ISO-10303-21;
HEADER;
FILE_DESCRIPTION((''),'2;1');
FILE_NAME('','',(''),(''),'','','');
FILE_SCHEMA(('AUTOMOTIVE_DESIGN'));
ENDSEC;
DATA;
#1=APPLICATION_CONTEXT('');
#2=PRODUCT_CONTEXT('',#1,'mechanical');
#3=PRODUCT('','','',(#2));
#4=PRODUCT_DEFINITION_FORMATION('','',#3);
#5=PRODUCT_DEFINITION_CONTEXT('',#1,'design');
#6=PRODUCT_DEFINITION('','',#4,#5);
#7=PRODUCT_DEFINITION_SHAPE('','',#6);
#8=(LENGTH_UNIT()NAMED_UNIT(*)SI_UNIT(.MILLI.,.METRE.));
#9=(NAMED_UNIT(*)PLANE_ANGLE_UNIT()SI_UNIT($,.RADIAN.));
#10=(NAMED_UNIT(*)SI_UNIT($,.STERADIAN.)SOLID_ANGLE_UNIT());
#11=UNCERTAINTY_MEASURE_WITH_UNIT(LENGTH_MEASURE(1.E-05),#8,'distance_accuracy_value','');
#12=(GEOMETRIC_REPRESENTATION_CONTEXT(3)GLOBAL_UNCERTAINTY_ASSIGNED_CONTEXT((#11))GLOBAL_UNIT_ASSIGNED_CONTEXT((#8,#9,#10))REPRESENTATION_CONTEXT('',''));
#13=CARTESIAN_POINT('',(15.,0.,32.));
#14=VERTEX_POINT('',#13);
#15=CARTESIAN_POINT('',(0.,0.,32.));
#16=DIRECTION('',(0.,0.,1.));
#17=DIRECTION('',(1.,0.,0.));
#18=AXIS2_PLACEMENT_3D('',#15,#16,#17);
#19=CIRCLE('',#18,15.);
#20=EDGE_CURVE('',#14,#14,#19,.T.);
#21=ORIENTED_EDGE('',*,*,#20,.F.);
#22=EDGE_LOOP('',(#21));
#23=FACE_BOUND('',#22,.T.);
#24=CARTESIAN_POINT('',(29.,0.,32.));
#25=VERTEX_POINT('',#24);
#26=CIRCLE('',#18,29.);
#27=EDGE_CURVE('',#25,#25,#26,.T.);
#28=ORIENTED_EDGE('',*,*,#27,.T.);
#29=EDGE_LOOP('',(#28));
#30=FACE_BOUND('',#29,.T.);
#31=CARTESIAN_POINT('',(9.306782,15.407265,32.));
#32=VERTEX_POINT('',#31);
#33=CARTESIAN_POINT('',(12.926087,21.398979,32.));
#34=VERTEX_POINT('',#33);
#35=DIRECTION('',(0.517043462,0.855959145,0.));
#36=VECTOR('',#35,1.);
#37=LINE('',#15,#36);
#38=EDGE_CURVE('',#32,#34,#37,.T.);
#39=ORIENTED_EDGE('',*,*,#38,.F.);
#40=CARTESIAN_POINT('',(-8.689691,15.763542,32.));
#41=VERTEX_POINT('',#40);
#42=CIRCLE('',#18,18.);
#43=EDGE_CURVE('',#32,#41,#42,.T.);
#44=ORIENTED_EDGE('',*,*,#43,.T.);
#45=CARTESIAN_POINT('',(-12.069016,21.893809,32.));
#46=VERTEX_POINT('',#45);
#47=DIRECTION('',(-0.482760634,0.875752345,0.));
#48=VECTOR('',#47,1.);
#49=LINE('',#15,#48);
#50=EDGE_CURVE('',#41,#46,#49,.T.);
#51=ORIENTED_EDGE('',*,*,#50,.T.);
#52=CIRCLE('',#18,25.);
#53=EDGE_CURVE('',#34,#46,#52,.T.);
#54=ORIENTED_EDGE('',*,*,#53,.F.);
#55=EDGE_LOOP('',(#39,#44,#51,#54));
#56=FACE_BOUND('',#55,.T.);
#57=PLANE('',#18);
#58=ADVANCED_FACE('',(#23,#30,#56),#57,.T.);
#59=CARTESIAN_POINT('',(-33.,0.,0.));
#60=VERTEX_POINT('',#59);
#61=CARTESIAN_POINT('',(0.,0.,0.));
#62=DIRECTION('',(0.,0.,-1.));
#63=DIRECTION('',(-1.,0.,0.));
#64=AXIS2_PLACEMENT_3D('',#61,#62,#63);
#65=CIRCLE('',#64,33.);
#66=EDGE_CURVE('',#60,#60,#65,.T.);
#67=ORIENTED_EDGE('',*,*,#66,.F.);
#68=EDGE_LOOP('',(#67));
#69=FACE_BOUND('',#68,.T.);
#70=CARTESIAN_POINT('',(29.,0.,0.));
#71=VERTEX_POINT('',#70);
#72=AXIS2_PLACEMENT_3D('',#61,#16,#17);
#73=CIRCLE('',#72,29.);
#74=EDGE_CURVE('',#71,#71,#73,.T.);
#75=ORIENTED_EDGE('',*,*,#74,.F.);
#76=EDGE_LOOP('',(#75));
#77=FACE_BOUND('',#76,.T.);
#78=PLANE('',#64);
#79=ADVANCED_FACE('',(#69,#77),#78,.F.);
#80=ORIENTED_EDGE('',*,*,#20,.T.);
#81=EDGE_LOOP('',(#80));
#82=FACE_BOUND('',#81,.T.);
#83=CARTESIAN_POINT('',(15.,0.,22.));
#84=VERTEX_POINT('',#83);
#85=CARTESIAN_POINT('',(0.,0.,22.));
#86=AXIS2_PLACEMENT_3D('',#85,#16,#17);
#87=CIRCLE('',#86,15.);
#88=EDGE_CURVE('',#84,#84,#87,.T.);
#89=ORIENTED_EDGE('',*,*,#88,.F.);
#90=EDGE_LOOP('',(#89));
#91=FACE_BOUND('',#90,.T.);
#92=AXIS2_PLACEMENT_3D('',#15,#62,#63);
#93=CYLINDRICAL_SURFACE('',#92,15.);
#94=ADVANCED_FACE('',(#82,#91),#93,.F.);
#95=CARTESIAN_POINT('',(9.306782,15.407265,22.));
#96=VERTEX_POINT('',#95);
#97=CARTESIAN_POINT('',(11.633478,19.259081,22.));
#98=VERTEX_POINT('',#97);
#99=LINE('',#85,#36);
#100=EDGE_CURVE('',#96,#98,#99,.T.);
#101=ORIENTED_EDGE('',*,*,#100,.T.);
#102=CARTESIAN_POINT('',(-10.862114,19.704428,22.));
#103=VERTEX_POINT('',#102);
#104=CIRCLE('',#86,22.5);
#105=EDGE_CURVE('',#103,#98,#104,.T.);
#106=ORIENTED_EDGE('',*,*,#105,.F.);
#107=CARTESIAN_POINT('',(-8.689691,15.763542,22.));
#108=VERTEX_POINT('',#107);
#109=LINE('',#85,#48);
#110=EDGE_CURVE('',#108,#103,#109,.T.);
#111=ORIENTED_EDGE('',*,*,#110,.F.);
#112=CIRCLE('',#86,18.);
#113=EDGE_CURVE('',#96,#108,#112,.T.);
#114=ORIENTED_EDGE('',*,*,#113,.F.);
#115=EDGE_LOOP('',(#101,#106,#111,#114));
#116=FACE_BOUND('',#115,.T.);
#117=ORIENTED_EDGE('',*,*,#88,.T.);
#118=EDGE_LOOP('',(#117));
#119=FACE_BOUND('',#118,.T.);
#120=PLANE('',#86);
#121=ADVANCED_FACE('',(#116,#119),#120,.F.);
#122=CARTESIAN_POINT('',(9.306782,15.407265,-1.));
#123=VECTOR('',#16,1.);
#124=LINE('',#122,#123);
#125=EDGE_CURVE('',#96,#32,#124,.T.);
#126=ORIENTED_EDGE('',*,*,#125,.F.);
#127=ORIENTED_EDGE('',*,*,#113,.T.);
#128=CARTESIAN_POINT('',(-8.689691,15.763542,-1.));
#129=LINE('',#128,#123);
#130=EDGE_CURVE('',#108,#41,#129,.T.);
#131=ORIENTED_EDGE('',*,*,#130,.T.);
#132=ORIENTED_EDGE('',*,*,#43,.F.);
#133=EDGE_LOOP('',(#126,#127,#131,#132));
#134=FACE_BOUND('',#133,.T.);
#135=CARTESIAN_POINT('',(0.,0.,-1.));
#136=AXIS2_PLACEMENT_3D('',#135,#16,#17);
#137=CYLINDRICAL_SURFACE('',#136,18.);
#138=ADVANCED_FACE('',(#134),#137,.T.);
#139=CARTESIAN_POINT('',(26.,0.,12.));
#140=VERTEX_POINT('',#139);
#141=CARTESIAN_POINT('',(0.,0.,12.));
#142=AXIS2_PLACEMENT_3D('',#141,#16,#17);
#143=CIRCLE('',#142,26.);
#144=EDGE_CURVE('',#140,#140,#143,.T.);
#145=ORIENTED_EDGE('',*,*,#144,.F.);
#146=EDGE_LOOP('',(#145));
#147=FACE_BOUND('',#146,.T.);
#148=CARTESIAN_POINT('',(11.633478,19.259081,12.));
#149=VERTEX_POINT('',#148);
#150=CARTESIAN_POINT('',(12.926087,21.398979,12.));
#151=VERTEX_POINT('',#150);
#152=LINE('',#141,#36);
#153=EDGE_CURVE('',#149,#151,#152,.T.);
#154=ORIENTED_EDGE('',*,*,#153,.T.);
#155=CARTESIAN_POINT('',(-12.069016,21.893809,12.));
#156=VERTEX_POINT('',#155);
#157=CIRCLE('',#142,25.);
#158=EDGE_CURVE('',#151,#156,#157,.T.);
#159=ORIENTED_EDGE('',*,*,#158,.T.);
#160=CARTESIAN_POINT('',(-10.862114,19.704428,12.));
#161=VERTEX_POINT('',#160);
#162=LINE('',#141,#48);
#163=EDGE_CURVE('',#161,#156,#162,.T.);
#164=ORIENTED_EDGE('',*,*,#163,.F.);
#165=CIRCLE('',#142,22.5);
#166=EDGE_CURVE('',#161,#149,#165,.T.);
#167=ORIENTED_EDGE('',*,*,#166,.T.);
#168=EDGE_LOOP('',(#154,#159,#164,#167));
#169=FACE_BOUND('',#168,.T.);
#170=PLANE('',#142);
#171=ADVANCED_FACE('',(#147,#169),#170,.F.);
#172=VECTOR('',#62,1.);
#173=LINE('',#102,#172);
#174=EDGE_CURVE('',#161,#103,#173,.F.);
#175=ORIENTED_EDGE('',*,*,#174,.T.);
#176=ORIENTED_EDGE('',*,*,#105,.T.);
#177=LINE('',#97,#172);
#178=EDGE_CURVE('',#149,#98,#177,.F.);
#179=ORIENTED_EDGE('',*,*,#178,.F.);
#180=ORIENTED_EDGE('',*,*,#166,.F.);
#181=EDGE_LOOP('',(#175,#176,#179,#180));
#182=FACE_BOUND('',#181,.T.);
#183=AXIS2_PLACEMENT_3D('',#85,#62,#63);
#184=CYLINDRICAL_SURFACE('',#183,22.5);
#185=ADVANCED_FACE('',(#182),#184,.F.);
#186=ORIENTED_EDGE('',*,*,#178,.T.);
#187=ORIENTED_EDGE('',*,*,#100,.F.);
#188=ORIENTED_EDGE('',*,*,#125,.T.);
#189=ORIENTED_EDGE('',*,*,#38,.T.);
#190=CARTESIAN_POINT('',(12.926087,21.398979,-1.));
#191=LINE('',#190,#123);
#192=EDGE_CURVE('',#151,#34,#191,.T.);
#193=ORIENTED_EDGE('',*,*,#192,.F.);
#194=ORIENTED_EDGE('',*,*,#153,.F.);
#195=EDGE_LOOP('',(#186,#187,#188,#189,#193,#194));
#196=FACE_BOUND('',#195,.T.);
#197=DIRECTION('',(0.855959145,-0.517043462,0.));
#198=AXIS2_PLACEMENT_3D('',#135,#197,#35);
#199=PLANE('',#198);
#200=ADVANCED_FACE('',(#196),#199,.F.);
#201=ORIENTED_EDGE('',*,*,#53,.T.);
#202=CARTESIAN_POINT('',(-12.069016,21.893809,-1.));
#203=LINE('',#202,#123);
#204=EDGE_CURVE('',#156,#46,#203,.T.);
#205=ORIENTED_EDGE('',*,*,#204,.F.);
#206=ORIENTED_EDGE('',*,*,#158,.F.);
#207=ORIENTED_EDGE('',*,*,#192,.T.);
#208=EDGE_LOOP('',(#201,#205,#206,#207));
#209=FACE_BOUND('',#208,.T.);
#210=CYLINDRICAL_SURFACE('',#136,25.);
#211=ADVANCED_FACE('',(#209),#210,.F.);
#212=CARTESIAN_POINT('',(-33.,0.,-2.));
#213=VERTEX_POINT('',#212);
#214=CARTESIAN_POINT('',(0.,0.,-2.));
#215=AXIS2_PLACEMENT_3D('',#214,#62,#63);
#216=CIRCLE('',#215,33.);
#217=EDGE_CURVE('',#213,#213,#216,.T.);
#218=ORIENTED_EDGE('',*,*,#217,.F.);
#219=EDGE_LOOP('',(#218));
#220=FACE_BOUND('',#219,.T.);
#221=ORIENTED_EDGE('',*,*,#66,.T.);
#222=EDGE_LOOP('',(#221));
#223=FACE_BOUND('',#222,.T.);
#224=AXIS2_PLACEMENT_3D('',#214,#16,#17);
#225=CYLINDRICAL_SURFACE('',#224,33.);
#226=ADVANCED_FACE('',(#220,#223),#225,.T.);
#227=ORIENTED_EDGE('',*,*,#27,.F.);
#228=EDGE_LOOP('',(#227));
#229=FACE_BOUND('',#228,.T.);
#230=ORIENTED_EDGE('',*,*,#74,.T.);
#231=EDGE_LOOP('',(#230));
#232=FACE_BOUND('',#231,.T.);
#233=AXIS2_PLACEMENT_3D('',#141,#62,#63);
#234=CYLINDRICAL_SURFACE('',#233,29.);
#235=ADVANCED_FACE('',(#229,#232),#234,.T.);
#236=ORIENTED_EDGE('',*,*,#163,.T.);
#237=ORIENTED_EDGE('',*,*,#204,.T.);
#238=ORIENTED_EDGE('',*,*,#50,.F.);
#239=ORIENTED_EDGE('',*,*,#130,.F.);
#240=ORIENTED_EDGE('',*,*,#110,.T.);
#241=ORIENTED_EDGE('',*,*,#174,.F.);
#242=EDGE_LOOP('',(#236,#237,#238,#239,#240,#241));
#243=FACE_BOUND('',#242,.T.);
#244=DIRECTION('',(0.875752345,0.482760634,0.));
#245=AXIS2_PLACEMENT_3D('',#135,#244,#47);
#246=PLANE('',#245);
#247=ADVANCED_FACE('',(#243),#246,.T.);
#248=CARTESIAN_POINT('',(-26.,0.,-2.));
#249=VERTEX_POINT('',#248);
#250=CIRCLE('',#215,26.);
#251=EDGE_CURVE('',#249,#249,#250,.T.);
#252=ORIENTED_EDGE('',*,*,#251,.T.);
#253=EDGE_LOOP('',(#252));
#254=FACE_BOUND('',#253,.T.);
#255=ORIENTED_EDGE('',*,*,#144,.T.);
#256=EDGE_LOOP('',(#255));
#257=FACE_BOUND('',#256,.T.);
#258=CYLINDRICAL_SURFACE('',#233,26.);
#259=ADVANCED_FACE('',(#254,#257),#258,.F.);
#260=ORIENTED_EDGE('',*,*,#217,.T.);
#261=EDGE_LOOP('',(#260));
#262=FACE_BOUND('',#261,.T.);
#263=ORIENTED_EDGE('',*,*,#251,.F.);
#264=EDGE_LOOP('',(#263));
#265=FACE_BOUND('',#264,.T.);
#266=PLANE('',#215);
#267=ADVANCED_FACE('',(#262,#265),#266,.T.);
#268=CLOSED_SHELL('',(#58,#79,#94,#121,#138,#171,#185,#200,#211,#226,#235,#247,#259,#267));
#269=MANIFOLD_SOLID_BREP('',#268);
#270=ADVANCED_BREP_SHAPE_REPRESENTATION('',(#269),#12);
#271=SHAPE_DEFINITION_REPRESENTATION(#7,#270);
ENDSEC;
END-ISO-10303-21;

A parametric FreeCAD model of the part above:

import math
import FreeCAD as App
import Part
import Sketcher
from FreeCAD import Vector

doc = App.newDocument("Part")
body = doc.addObject("PartDesign::Body", "Body")

sketch1 = body.newObject("Sketcher::SketchObject", "Sketch")
sketch1.AttachmentSupport = (doc.getObject("XY_Plane"), [""])
sketch1.MapMode = "FlatFace"
sketch1.addGeometry([
    Part.Circle(Vector(0, 0, 0), Vector(0, 0, 1), 29),
    Part.Circle(Vector(0, 0, 0), Vector(0, 0, 1), 26),
], False)
sketch1.addConstraint([
    Sketcher.Constraint("Coincident", 0, 3, -1, 1),
    Sketcher.Constraint("Coincident", 1, 3, -1, 1),
    Sketcher.Constraint("Diameter", 0, 58.0),
    Sketcher.Constraint("Diameter", 1, 52.0),
])
pad1 = body.newObject("PartDesign::Pad", "Pad")
pad1.Profile = sketch1
pad1.Length = 12

sketch2 = body.newObject("Sketcher::SketchObject", "Sketch001")
sketch2.AttachmentSupport = (doc.getObject("XY_Plane"), [""])
sketch2.MapMode = "FlatFace"
sketch2.AttachmentOffset = App.Placement(Vector(0, 0, 12), App.Rotation())
sketch2.addGeometry([
    Part.Circle(Vector(0, 0, 0), Vector(0, 0, 1), 29),
    Part.Circle(Vector(0, 0, 0), Vector(0, 0, 1), 22.5),
], False)
sketch2.addConstraint([
    Sketcher.Constraint("Coincident", 0, 3, -1, 1),
    Sketcher.Constraint("Coincident", 1, 3, -1, 1),
    Sketcher.Constraint("Diameter", 0, 58.0),
    Sketcher.Constraint("Diameter", 1, 45.0),
])
pad2 = body.newObject("PartDesign::Pad", "Pad001")
pad2.Profile = sketch2
pad2.Length = 10

sketch3 = body.newObject("Sketcher::SketchObject", "Sketch002")
sketch3.AttachmentSupport = (doc.getObject("XY_Plane"), [""])
sketch3.MapMode = "FlatFace"
sketch3.AttachmentOffset = App.Placement(Vector(0, 0, 22), App.Rotation())
sketch3.addGeometry([
    Part.Circle(Vector(0, 0, 0), Vector(0, 0, 1), 29),
    Part.Circle(Vector(0, 0, 0), Vector(0, 0, 1), 15),
], False)
sketch3.addConstraint([
    Sketcher.Constraint("Coincident", 0, 3, -1, 1),
    Sketcher.Constraint("Coincident", 1, 3, -1, 1),
    Sketcher.Constraint("Diameter", 0, 58.0),
    Sketcher.Constraint("Diameter", 1, 30.0),
])
pad3 = body.newObject("PartDesign::Pad", "Pad002")
pad3.Profile = sketch3
pad3.Length = 10

sketch4 = body.newObject("Sketcher::SketchObject", "Sketch003")
sketch4.AttachmentSupport = (doc.getObject("XY_Plane"), [""])
sketch4.MapMode = "FlatFace"
sketch4.AttachmentOffset = App.Placement(Vector(0, 0, 32), App.Rotation())
sketch4.addGeometry([
    Part.LineSegment(Vector(9.306782, 15.407265, 0), Vector(12.926087, 21.398979, 0)),
    Part.ArcOfCircle(Part.Circle(Vector(0, 0, 0), Vector(0, 0, 1), 25), math.radians(58.865859), math.radians(118.865859)),
    Part.LineSegment(Vector(-12.069016, 21.893809, 0), Vector(-8.689691, 15.763542, 0)),
    Part.ArcOfCircle(Part.Circle(Vector(0, 0, 0), Vector(0, 0, 1), 18), math.radians(58.865859), math.radians(118.865859)),
], False)
sketch4.addConstraint([
    Sketcher.Constraint("Coincident", 0, 2, 1, 1),
    Sketcher.Constraint("Coincident", 1, 2, 2, 1),
    Sketcher.Constraint("Coincident", 2, 2, 3, 2),
    Sketcher.Constraint("Coincident", 3, 1, 0, 1),
    Sketcher.Constraint("Coincident", 1, 3, -1, 1),
    Sketcher.Constraint("Coincident", 3, 3, -1, 1),
    Sketcher.Constraint("Radius", 1, 25.0),
    Sketcher.Constraint("Radius", 3, 18.0),
    Sketcher.Constraint("DistanceX", 1, 2, 3, 1, 21.375798),
    Sketcher.Constraint("DistanceY", -1, 1, 0, 2, 21.398979),
    Sketcher.Constraint("DistanceY", -1, 1, 1, 2, 21.893809),
    Sketcher.Constraint("DistanceX", 2, 2, -1, 1, 8.689691),
])
pocket1 = body.newObject("PartDesign::Pocket", "Pocket")
pocket1.Profile = sketch4
pocket1.Length = 33

sketch5 = body.newObject("Sketcher::SketchObject", "Sketch004")
sketch5.AttachmentSupport = (doc.getObject("XY_Plane"), [""])
sketch5.MapMode = "FlatFace"
sketch5.AttachmentOffset = App.Placement(Vector(0, 0, -2), App.Rotation())
sketch5.addGeometry([
    Part.Circle(Vector(0, 0, 0), Vector(0, 0, 1), 33),
    Part.Circle(Vector(0, 0, 0), Vector(0, 0, 1), 26),
], False)
sketch5.addConstraint([
    Sketcher.Constraint("Coincident", 0, 3, -1, 1),
    Sketcher.Constraint("Coincident", 1, 3, -1, 1),
    Sketcher.Constraint("Diameter", 0, 66.0),
    Sketcher.Constraint("Diameter", 1, 52.0),
])
pad4 = body.newObject("PartDesign::Pad", "Pad003")
pad4.Profile = sketch5
pad4.Length = 2

doc.recompute()
